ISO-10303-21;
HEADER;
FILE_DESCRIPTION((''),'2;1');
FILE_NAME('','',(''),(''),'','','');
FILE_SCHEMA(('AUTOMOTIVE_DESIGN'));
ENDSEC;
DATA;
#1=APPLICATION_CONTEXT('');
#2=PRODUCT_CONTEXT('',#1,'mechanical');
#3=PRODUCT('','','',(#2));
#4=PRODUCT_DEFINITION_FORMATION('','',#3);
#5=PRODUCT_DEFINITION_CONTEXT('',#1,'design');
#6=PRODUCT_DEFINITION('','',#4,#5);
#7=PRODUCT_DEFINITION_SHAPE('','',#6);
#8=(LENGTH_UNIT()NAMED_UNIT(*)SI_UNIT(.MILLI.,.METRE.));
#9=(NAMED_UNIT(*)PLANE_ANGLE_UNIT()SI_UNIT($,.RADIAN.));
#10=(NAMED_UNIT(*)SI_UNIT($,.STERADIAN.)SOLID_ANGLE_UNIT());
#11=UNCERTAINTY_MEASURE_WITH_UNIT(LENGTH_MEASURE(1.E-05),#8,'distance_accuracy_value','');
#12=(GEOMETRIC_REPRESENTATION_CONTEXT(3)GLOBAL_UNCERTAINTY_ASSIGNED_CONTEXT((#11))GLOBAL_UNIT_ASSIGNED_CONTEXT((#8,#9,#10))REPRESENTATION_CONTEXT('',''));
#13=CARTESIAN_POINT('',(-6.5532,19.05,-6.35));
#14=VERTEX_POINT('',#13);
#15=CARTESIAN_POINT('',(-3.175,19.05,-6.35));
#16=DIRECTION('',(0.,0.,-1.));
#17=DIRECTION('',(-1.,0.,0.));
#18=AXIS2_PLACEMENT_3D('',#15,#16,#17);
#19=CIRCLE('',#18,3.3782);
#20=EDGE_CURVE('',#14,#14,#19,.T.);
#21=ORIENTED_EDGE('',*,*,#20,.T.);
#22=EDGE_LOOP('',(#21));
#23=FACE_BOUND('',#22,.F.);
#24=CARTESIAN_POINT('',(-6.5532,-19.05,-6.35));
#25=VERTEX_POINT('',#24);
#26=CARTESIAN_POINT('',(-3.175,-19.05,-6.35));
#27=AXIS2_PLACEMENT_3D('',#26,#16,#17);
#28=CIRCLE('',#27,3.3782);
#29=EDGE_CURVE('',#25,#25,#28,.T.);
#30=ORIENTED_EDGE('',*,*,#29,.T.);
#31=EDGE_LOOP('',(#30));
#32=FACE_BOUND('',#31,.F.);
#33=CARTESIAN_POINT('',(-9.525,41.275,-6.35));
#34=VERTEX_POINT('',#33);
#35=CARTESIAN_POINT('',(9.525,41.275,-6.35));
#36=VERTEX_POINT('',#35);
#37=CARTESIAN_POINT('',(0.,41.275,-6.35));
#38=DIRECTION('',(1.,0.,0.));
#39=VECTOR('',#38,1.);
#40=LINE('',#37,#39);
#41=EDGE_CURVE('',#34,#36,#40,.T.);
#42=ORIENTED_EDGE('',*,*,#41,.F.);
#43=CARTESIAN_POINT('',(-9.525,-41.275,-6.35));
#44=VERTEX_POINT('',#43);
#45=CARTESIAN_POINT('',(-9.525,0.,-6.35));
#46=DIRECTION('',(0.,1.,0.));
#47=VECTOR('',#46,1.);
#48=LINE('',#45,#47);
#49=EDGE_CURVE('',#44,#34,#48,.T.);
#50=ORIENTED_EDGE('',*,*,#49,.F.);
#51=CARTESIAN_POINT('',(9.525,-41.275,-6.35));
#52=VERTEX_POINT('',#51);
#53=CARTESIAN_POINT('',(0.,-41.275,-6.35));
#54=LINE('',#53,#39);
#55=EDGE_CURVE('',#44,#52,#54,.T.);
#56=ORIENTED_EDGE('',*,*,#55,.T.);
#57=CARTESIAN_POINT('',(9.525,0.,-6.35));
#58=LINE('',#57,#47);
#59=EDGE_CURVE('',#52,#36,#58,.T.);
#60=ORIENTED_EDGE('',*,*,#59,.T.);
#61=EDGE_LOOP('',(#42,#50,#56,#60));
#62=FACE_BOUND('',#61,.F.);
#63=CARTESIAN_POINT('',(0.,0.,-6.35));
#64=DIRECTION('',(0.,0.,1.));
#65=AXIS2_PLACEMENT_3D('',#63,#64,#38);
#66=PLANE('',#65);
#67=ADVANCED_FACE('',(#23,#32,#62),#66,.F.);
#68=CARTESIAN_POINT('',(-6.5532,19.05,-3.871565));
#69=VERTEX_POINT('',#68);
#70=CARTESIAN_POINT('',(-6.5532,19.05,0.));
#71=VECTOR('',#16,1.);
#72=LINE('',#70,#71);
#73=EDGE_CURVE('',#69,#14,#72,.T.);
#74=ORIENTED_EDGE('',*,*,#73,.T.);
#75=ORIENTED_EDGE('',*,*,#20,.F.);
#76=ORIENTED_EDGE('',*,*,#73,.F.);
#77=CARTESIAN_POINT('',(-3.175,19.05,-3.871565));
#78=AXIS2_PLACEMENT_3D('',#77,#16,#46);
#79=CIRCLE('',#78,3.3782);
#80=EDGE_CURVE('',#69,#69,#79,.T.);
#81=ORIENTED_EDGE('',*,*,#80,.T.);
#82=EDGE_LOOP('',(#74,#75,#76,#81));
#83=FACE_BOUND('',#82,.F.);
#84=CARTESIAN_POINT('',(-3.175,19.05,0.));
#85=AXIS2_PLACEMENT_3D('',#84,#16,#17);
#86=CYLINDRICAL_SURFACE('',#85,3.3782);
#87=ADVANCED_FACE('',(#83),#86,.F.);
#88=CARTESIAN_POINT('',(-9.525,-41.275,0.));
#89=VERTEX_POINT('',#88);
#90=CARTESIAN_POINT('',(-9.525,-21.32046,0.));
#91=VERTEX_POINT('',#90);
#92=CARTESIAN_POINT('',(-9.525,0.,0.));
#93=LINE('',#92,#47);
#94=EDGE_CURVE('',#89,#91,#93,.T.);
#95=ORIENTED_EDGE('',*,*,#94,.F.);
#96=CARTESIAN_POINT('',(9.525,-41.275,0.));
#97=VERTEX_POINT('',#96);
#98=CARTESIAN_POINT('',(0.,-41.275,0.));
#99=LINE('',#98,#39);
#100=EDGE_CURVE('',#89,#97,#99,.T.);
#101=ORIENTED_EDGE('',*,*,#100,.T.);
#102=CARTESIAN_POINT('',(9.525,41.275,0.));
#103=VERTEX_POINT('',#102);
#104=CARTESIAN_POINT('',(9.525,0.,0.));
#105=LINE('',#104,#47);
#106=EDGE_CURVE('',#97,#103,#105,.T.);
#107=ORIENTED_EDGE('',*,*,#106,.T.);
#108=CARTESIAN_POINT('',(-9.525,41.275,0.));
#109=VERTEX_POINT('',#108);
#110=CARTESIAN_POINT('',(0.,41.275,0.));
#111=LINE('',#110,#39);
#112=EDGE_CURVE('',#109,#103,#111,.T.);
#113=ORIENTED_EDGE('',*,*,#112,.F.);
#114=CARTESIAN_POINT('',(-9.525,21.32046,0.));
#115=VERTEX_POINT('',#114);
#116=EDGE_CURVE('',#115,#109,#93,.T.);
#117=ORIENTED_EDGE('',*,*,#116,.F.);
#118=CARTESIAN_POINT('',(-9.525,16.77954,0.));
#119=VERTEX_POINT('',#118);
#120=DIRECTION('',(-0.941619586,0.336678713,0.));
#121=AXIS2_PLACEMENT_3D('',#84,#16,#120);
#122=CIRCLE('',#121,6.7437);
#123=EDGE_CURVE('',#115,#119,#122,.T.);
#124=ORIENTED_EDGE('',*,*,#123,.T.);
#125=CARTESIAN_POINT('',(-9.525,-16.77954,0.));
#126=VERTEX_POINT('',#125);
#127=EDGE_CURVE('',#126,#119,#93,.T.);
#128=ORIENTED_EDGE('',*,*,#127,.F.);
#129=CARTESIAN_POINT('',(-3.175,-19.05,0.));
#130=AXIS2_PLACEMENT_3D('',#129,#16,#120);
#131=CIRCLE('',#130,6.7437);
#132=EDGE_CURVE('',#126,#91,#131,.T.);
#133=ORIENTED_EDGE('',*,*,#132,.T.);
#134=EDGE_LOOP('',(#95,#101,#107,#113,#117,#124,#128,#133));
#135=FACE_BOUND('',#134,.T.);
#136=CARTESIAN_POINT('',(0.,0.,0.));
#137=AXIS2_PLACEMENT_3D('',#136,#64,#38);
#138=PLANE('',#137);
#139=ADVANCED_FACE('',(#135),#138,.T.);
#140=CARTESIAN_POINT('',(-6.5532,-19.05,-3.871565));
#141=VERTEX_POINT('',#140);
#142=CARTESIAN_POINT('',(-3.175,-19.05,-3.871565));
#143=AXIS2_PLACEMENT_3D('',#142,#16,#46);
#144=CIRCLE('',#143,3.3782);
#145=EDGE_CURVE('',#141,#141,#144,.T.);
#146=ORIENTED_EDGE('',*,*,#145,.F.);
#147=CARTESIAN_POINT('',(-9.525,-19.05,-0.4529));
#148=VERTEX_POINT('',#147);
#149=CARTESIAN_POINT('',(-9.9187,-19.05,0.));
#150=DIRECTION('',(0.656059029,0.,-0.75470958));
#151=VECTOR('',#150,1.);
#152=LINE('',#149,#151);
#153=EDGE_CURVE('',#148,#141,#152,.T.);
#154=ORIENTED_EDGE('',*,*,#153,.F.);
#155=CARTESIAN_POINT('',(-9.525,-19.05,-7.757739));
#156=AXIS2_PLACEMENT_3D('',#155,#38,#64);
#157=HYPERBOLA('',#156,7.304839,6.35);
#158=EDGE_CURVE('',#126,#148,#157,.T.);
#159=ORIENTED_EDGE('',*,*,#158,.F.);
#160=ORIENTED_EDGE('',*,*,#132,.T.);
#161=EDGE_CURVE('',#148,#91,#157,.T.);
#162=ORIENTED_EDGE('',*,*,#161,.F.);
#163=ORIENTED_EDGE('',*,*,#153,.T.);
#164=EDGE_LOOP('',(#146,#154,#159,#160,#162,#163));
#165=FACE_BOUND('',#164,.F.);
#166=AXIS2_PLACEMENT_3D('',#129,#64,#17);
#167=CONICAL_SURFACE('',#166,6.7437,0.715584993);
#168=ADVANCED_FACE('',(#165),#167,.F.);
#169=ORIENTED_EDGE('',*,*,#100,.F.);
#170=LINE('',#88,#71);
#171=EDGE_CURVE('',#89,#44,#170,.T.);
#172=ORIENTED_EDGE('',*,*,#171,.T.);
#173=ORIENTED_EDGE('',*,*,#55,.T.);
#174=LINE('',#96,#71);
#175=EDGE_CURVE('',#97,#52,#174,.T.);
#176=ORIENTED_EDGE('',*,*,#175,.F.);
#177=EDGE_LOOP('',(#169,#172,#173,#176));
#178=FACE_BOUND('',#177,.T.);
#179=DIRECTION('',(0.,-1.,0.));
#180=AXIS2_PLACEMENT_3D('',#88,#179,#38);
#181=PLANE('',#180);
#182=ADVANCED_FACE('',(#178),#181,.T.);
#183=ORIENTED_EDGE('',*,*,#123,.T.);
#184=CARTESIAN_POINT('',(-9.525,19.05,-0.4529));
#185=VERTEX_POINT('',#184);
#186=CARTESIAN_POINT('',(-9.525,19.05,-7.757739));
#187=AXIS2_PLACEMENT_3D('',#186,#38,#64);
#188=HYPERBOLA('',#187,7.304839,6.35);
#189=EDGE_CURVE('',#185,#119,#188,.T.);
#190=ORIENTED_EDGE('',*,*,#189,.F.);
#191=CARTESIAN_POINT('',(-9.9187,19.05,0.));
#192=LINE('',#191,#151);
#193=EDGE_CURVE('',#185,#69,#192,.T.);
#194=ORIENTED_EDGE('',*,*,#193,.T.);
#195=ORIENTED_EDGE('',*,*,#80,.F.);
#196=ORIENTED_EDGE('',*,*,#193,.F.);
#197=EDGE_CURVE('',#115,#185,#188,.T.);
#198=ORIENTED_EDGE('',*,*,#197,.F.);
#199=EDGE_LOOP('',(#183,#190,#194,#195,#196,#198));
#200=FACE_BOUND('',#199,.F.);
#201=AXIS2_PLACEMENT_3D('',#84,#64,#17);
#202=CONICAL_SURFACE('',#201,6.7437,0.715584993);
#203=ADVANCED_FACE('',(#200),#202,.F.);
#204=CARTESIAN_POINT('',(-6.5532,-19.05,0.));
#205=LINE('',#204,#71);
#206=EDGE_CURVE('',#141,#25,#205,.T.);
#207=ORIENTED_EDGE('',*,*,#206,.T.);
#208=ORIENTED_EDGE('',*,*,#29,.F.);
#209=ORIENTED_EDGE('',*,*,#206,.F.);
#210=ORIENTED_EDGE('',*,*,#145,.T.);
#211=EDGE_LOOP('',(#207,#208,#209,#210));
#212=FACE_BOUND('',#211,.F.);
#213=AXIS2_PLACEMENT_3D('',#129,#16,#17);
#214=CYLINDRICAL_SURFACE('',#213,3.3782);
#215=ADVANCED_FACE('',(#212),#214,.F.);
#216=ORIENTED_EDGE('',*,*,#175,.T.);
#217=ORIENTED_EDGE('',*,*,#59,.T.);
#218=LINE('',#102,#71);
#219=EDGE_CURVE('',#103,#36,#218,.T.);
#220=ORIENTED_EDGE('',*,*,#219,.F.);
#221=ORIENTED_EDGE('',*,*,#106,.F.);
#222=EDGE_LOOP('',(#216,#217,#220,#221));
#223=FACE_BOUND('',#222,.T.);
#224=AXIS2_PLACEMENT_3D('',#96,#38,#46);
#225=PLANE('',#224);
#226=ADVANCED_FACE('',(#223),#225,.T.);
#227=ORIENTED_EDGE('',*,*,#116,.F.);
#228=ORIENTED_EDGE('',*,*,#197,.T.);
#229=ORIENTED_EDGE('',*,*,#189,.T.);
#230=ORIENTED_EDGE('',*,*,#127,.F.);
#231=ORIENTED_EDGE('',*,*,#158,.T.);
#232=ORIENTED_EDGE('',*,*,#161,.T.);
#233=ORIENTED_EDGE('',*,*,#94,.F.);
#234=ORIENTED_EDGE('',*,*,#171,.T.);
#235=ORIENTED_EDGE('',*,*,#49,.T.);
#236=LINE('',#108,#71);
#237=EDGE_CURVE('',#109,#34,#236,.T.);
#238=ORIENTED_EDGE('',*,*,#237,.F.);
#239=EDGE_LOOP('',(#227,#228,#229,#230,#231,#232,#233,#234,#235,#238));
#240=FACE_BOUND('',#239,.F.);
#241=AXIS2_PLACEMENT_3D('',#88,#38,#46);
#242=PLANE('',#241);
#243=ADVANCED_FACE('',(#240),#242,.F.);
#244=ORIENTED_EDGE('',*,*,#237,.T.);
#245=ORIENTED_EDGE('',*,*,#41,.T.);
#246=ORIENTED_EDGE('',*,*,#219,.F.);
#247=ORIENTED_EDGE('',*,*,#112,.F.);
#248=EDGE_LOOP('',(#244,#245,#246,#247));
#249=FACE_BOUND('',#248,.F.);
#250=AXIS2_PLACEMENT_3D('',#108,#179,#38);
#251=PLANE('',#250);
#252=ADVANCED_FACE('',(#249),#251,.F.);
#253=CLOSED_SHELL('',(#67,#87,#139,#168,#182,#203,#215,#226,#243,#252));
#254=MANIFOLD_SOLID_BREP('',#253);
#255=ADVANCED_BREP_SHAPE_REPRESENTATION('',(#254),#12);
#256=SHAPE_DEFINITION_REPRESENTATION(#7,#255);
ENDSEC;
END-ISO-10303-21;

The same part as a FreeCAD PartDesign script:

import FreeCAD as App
import Part
import Sketcher

V = App.Vector
Q = App.Units.Quantity

doc = App.newDocument("Part")
params = doc.addObject("Spreadsheet::Sheet", "Params")
for row, (alias, value) in enumerate([
    ("sketch1_width", "0.75 in"),
    ("sketch1_height", "3.25 in"),
    ("pad1_length", "0.25 in"),
    ("sketch2_diameter", "0.266 in"),
    ("hole_diameter", "0.266 in"),
    ("hole_csink_diameter", "0.531 in"),
], start=1):
    params.set(f"A{row}", alias)
    params.set(f"B{row}", "=" + value)
    params.setAlias(f"B{row}", alias)

body = doc.addObject("PartDesign::Body", "Body")

# Sketch on XY plane
sketch1 = doc.addObject("Sketcher::SketchObject", "Sketch")
body.addObject(sketch1)
sketch1.AttachmentSupport = (doc.XY_Plane, [""])
sketch1.MapMode = "FlatFace"
sketch1.addGeometry([
    Part.LineSegment(V(-9.525, 41.275, 0), V(-9.525, -41.275, 0)),
    Part.LineSegment(V(-9.525, -41.275, 0), V(9.525, -41.275, 0)),
    Part.LineSegment(V(9.525, -41.275, 0), V(9.525, 41.275, 0)),
    Part.LineSegment(V(9.525, 41.275, 0), V(-9.525, 41.275, 0)),
], False)
sketch1.addConstraint([
    Sketcher.Constraint("Coincident", 0, 2, 1, 1),
    Sketcher.Constraint("Coincident", 1, 2, 2, 1),
    Sketcher.Constraint("Coincident", 2, 2, 3, 1),
    Sketcher.Constraint("Coincident", 3, 2, 0, 1),
    Sketcher.Constraint("Vertical", 0),
    Sketcher.Constraint("Horizontal", 1),
    Sketcher.Constraint("Vertical", 2),
    Sketcher.Constraint("Horizontal", 3),
    Sketcher.Constraint("Symmetric", 0, 2, 2, 2, -1, 1),
    Sketcher.Constraint("DistanceX", 1, 1, 1, 2, Q("0.75 in")),
    Sketcher.Constraint("DistanceY", 0, 2, 0, 1, Q("3.25 in")),
])
sketch1.setExpression("Constraints[9]", "Params.sketch1_width")
sketch1.setExpression("Constraints[10]", "Params.sketch1_height")
pad1 = doc.addObject("PartDesign::Pad", "Pad")
body.addObject(pad1)
pad1.Profile = sketch1
pad1.setExpression("Length", "Params.pad1_length")
pad1.Reversed = True

# Sketch on XY plane
sketch2 = doc.addObject("Sketcher::SketchObject", "Sketch001")
body.addObject(sketch2)
sketch2.AttachmentSupport = (doc.XY_Plane, [""])
sketch2.MapMode = "FlatFace"
sketch2.addGeometry([
    Part.Circle(V(-3.175, 19.05, 0), V(0, 0, 1), 3.3782),
    Part.Circle(V(-3.175, -19.05, 0), V(0, 0, 1), 3.3782),
], False)
sketch2.addConstraint([
    Sketcher.Constraint("Equal", 0, 1),
    Sketcher.Constraint("Symmetric", 0, 3, 1, 3, -1),
    Sketcher.Constraint("Diameter", 0, Q("0.266 in")),
    Sketcher.Constraint("DistanceY", 1, 3, 0, 3, Q("1.5 in")),
    Sketcher.Constraint("DistanceX", 0, 3, -1, 1, Q("0.125 in")),
])
sketch2.setExpression("Constraints[2]", "Params.sketch2_diameter")
doc.recompute()
hole = doc.addObject("PartDesign::Hole", "Hole")
body.addObject(hole)
hole.Profile = sketch2
hole.ThreadType = "None"
hole.setExpression("Diameter", "Params.hole_diameter")
hole.DepthType = "ThroughAll"
hole.HoleCutType = "Countersink"
hole.setExpression("HoleCutDiameter", "Params.hole_csink_diameter")
hole.HoleCutCountersinkAngle = 82

doc.recompute()
